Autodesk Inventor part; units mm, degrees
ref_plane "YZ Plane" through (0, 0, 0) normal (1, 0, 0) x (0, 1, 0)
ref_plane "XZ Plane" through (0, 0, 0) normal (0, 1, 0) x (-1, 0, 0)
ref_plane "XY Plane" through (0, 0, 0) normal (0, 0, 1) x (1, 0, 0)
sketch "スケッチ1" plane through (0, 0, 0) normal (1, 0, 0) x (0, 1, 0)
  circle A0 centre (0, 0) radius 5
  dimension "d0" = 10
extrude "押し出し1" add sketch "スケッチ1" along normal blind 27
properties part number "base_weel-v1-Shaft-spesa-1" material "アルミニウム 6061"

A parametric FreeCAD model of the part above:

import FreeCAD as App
import Part
import Sketcher

V = App.Vector
Q = App.Units.Quantity

doc = App.newDocument("Part")
body = doc.addObject("PartDesign::Body", "Body")

sketch1 = doc.addObject("Sketcher::SketchObject", "Sketch")
body.addObject(sketch1)
sketch1.AttachmentSupport = (doc.YZ_Plane, [""])
sketch1.MapMode = "FlatFace"
sketch1.addGeometry(Part.Circle(V(0, 0, 0), V(0, 0, 1), 5), False)
sketch1.addConstraint(Sketcher.Constraint("Coincident", 0, 3, -1, 1))
sketch1.addConstraint(Sketcher.Constraint("Diameter", 0, Q("0.3937 in")))
pad1 = doc.addObject("PartDesign::Pad", "Pad")
body.addObject(pad1)
pad1.Profile = sketch1
pad1.Length = Q("1.0629921 in")

doc.recompute()
